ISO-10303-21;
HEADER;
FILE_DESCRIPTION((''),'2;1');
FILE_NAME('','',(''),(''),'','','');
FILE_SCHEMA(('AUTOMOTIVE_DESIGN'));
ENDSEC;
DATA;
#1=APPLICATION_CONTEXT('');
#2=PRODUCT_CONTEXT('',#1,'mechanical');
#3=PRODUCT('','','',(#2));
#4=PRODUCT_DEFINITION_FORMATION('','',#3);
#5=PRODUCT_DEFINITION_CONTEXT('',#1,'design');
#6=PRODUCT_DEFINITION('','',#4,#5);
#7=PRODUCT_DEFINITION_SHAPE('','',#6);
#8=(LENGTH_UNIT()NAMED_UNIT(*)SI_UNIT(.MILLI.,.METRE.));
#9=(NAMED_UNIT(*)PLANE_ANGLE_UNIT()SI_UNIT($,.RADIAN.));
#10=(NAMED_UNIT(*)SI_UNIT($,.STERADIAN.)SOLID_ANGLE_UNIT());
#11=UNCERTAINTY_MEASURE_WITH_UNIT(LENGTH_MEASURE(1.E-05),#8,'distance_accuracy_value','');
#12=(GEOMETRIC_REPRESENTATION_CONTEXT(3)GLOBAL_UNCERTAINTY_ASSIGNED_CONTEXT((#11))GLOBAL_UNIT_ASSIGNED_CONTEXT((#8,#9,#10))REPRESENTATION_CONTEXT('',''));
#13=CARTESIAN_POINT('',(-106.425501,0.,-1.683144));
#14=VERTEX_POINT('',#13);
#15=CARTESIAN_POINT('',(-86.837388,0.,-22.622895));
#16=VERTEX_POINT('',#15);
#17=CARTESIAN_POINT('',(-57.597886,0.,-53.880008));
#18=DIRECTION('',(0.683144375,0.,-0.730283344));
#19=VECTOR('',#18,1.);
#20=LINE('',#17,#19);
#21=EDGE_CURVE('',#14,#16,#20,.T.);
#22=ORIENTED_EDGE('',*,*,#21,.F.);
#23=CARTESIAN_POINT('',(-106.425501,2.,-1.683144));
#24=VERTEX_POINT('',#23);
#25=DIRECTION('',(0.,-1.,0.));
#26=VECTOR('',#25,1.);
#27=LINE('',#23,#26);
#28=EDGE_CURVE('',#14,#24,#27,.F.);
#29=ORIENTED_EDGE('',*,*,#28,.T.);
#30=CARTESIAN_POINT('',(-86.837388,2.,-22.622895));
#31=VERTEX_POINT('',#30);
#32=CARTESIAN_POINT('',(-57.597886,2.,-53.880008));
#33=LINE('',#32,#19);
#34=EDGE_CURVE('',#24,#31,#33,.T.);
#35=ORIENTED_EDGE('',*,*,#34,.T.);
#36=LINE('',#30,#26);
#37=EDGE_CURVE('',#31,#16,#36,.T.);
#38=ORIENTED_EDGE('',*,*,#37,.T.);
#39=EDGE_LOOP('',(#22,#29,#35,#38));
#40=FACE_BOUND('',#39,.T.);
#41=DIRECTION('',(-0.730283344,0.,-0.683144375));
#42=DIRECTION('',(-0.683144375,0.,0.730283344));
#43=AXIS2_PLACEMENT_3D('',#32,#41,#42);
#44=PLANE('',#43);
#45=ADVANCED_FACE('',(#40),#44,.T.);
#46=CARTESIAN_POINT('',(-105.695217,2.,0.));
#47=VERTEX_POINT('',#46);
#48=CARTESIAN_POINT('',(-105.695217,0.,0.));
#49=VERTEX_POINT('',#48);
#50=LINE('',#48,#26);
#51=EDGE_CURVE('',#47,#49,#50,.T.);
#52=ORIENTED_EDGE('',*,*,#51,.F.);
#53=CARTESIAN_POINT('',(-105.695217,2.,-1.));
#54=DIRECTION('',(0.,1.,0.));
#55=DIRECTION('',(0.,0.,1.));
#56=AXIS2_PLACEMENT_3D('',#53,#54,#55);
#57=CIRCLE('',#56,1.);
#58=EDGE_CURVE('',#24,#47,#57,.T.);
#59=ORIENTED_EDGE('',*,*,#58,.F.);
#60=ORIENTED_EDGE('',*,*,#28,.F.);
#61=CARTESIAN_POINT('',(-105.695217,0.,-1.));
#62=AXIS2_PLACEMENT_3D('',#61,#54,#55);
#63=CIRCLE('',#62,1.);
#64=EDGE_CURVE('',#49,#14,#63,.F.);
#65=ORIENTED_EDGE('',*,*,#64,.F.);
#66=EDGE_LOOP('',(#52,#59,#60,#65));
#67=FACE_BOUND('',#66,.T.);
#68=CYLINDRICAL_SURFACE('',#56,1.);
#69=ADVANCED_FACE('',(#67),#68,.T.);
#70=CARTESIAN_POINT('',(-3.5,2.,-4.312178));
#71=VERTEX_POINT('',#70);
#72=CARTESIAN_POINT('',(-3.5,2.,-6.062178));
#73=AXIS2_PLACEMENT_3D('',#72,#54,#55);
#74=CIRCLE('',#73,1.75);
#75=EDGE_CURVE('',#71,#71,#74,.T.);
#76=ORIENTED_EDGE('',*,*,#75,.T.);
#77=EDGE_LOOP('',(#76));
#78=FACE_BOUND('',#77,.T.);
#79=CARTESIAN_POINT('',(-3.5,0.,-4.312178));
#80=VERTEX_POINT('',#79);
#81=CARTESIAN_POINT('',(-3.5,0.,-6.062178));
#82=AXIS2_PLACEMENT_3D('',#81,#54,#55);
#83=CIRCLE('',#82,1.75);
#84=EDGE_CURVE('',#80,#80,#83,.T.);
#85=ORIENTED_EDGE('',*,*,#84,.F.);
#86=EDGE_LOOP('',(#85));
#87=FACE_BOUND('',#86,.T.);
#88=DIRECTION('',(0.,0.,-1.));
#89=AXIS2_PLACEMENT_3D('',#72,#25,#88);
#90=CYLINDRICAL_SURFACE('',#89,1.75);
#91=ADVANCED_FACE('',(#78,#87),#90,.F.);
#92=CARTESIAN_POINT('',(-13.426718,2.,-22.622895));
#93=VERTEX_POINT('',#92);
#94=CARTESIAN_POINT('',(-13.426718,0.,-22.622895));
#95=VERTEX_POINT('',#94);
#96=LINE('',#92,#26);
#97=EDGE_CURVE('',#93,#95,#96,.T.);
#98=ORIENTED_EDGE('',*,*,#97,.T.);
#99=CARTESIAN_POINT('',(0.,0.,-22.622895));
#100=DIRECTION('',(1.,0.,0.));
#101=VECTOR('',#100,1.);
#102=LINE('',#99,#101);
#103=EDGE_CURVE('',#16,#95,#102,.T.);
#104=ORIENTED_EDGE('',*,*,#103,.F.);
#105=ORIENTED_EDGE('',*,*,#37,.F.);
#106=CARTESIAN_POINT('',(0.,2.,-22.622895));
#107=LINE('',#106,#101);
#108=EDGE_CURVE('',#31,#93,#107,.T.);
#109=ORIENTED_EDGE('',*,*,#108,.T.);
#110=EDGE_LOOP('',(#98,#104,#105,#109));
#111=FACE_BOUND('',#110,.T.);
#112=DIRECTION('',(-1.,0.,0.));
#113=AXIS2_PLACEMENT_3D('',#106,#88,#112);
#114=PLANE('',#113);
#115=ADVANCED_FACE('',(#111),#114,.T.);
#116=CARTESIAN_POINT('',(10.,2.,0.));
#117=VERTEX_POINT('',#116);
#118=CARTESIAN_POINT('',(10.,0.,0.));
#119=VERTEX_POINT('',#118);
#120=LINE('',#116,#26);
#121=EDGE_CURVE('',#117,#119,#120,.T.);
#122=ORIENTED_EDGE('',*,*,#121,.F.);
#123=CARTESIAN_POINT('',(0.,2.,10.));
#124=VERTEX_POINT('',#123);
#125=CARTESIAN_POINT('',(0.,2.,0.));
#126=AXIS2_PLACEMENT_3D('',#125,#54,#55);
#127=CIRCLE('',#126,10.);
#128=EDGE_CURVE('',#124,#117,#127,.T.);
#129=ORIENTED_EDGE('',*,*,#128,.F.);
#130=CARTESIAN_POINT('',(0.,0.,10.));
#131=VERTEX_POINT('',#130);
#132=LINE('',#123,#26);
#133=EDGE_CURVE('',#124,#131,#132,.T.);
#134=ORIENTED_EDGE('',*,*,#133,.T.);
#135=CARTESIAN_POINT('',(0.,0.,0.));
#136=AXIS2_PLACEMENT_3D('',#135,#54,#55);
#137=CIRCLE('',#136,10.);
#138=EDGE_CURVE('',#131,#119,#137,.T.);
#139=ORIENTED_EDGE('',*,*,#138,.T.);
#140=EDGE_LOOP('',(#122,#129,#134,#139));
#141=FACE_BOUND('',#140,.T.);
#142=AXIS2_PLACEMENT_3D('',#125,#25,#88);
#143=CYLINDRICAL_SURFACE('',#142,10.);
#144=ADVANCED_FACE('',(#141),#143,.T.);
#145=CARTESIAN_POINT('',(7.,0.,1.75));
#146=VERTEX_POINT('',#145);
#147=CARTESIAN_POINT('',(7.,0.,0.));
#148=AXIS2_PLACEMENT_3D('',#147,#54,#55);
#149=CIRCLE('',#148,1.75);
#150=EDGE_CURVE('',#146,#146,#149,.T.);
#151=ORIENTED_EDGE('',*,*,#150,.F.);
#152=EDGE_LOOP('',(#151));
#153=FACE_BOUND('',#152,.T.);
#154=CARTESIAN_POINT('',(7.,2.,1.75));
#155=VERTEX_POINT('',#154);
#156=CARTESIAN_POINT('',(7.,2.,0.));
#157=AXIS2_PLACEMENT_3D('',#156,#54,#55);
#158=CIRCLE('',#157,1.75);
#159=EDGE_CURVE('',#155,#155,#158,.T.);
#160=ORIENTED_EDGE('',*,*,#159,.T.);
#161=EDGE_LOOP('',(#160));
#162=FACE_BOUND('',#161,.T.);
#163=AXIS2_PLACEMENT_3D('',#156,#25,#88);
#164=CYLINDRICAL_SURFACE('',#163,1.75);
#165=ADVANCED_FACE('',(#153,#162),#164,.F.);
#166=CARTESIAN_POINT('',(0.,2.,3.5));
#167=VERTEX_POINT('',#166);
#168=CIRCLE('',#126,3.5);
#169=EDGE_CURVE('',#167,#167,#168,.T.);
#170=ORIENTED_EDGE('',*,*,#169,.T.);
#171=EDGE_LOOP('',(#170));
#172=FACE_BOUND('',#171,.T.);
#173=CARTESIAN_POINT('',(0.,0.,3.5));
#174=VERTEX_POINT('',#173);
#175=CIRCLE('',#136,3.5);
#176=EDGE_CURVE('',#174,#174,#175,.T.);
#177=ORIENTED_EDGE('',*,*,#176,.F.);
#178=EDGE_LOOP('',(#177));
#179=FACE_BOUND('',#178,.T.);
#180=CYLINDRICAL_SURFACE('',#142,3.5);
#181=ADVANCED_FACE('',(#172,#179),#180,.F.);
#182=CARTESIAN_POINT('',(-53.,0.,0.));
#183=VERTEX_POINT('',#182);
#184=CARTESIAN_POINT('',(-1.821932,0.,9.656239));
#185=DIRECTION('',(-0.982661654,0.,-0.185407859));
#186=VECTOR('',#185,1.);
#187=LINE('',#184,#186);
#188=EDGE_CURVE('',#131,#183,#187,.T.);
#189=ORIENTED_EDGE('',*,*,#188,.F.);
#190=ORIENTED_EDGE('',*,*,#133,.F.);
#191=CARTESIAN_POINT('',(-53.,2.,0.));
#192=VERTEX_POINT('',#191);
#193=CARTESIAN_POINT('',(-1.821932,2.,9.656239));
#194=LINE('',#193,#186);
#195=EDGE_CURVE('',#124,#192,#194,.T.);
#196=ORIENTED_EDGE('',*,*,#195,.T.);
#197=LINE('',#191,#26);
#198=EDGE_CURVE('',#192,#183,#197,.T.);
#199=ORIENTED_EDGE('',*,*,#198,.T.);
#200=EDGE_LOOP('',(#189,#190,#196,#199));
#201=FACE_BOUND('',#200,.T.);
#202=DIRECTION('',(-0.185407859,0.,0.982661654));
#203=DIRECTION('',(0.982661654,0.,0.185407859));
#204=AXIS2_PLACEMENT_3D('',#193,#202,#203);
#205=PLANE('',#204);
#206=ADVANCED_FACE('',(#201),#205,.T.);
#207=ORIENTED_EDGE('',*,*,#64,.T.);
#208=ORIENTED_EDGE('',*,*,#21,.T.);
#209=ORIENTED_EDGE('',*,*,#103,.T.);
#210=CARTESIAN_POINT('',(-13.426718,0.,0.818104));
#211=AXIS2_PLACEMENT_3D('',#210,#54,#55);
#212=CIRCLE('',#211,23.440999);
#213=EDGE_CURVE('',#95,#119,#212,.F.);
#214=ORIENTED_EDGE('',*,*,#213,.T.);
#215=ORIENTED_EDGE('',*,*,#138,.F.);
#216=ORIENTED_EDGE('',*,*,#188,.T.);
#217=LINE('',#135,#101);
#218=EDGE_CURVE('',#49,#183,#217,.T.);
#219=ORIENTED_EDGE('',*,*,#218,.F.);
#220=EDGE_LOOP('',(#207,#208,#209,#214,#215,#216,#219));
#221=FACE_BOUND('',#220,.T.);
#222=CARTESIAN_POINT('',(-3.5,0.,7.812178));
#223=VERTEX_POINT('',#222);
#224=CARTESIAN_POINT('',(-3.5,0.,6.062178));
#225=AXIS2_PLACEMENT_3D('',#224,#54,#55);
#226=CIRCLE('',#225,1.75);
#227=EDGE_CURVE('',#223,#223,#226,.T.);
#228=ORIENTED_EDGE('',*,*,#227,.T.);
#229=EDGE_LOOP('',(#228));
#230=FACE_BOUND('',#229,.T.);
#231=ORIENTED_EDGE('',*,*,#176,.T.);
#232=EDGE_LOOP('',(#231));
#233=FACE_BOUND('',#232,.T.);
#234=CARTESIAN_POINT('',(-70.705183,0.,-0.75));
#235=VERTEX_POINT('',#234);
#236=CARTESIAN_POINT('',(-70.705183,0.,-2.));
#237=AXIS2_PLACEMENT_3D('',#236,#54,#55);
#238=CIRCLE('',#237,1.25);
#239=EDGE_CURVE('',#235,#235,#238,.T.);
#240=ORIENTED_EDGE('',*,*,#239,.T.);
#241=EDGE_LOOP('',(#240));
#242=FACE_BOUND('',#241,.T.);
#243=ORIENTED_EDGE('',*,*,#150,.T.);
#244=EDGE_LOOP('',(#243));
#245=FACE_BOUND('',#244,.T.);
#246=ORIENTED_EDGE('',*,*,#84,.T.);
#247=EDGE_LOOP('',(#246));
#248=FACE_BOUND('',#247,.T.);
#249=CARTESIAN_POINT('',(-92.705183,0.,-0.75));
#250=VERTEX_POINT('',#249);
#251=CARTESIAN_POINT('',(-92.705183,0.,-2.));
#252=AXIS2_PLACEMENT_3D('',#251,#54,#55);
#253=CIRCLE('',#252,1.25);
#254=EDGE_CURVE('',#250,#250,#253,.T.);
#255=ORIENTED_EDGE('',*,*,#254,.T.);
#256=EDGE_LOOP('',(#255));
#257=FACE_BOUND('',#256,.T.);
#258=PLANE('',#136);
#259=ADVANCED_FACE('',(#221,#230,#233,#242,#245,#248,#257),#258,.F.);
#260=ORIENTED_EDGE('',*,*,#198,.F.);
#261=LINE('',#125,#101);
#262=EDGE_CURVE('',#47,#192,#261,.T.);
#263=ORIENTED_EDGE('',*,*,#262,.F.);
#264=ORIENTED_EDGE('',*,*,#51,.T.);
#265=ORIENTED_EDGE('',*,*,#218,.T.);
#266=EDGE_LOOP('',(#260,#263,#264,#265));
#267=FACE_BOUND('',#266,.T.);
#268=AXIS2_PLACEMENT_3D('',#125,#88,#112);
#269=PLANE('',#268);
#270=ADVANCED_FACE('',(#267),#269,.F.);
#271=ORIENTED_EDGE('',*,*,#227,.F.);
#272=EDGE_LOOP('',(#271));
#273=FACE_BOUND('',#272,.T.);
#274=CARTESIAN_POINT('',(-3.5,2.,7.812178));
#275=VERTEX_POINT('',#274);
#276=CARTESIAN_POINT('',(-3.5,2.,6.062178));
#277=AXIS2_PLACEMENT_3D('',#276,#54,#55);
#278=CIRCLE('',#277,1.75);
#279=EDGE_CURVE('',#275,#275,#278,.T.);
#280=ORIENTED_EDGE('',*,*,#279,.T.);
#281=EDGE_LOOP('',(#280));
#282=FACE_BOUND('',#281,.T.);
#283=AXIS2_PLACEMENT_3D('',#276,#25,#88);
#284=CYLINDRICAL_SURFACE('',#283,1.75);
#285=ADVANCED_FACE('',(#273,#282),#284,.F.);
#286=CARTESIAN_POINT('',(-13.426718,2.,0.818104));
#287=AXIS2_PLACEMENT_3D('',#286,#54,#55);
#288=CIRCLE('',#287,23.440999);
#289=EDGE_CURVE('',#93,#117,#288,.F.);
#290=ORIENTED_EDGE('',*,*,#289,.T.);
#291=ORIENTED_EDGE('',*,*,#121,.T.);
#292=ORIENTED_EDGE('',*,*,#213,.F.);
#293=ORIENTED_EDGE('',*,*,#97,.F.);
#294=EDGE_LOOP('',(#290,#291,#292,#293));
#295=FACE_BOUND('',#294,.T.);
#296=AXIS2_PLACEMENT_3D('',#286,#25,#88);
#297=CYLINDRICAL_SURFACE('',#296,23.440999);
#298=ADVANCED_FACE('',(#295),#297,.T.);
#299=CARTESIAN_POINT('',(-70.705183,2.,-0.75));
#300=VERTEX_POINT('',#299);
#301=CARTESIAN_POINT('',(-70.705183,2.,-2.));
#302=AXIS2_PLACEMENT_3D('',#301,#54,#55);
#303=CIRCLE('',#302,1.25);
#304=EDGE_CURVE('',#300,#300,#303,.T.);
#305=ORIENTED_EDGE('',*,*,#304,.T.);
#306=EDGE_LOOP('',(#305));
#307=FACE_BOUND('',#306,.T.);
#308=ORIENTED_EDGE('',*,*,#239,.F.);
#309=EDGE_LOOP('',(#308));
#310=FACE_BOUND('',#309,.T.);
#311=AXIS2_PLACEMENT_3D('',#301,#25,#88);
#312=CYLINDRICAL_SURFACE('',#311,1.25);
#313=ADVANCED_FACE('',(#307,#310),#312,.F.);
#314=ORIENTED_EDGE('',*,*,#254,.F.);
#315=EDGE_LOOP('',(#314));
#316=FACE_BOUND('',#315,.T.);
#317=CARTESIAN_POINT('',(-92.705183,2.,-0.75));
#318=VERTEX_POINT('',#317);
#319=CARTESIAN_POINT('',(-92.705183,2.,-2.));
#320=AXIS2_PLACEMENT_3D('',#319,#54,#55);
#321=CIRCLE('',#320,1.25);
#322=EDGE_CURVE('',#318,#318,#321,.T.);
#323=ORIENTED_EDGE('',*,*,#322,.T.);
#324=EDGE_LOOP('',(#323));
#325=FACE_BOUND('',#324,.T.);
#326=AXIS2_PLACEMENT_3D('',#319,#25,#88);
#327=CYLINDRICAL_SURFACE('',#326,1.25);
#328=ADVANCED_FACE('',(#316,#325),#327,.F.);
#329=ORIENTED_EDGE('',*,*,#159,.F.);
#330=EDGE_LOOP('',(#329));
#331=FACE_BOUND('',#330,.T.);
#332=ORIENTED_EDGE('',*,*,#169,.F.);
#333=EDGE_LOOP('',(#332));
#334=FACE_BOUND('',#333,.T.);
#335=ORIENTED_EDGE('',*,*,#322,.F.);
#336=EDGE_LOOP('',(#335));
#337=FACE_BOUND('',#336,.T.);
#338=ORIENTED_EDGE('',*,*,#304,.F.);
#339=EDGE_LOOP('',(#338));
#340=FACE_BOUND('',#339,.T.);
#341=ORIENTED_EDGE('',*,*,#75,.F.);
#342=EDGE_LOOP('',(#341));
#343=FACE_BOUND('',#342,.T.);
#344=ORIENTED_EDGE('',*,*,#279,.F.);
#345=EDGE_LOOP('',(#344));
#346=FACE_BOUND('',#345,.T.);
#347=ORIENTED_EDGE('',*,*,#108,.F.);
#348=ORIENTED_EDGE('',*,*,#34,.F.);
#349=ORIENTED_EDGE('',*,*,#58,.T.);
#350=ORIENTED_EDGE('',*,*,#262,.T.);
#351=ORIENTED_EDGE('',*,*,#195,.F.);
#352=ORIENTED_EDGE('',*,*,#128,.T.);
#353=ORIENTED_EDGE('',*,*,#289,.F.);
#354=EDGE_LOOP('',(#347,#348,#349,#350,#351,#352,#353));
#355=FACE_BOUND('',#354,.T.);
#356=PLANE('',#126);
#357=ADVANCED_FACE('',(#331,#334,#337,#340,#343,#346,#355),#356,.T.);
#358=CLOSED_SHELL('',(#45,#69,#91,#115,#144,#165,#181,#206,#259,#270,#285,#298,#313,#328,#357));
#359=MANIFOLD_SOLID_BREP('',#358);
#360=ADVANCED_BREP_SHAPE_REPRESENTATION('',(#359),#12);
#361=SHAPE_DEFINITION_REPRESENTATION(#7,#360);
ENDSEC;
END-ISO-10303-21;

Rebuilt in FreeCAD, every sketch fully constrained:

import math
import FreeCAD as App
import Part
import Sketcher

V = App.Vector
Q = App.Units.Quantity


def edges_at(feature, points):
    """Names of the edges that pass closest to the given points."""
    edges = feature.Shape.Edges
    near = lambda p: min(range(len(edges)), key=lambda i: edges[i].distToShape(Part.Vertex(*p))[0])
    return sorted({f"Edge{near(p) + 1}" for p in points})

doc = App.newDocument("Part")
body = doc.addObject("PartDesign::Body", "Body")

# Sketch on XZ plane
sketch1 = body.newObject("Sketcher::SketchObject", "Sketch")
sketch1.AttachmentSupport = (doc.getObject("XZ_Plane"), [""])
sketch1.MapMode = "FlatFace"
sketch1.addGeometry([
    Part.LineSegment(V(-13.4, -22.6, 0), V(-86.8, -22.6, 0)),  # 0
    Part.LineSegment(V(-86.8, -22.6, 0), V(-108, 0, 0)),  # 1
    Part.LineSegment(V(-108, 0, 0), V(-53, 0, 0)),  # 2
    Part.LineSegment(V(-53, 0, 0), V(0, 10, 0)),  # 3
    Part.ArcOfCircle(Part.Circle(V(0, 0, 0), V(0, 0, 1), 10), math.radians(0), math.radians(90)),  # 4
    Part.ArcOfCircle(Part.Circle(V(-13.4, 0.8, 0), V(0, 0, 1), 23.4), math.radians(-90), math.radians(-2)),  # 5
    Part.Circle(V(-3.5, 6.1, 0), V(0, 0, 1), 1.8),  # 6
    Part.Circle(V(-92.7, -2, 0), V(0, 0, 1), 1.2),  # 7
    Part.Circle(V(-70.7, -2, 0), V(0, 0, 1), 1.2),  # 8
    Part.Circle(V(0, 0, 0), V(0, 0, 1), 3.5),  # 9
    Part.Circle(V(7, 0, 0), V(0, 0, 1), 1.8),  # 10
    Part.Circle(V(-3.5, -6.1, 0), V(0, 0, 1), 1.8),  # 11
], False)
sketch1.addConstraint([
    Sketcher.Constraint("Coincident", 0, 2, 1, 1),
    Sketcher.Constraint("Coincident", 1, 2, 2, 1),
    Sketcher.Constraint("Coincident", 2, 2, 3, 1),
    Sketcher.Constraint("Coincident", 3, 2, 4, 2),
    Sketcher.Constraint("Coincident", 4, 1, 5, 2),
    Sketcher.Constraint("Tangent", 5, 1, 0, 1),
    Sketcher.Constraint("Horizontal", 0),
    Sketcher.Constraint("Horizontal", 2),
    Sketcher.Constraint("Coincident", 4, 3, -1, 1),
    Sketcher.Constraint("Coincident", 9, 3, -1, 1),
    Sketcher.Constraint("Equal", 7, 8),
    Sketcher.Constraint("Equal", 6, 10),
    Sketcher.Constraint("Equal", 10, 11),
    Sketcher.Constraint("Symmetric", 6, 3, 11, 3, -1),
    Sketcher.Constraint("PointOnObject", 10, 3, -1),
    Sketcher.Constraint("PointOnObject", 1, 2, -1),
    Sketcher.Constraint("PointOnObject", 3, 2, -2),
    Sketcher.Constraint("PointOnObject", 4, 1, -1),
    Sketcher.Constraint("Horizontal", 7, 3, 8, 3),
    Sketcher.Constraint("Diameter", 9, Q("7 mm")),
    Sketcher.Constraint("Radius", 4, Q("10 mm")),
    Sketcher.Constraint("Diameter", 6, Q("3.5 mm")),
    Sketcher.Constraint("Diameter", 7, Q("2.5 mm")),
    Sketcher.Constraint("DistanceX", 2, 1, 2, 2, Q("55 mm")),
    Sketcher.Constraint("DistanceY", 7, 3, -1, 1, Q("2 mm")),
    Sketcher.Constraint("DistanceX", -1, 1, 10, 3, Q("7 mm")),
    Sketcher.Constraint("DistanceX", 1, 2, -1, 1, Q("108 mm")),
    Sketcher.Constraint("Radius", 5, Q("23.440999 mm")),
    Sketcher.Constraint("DistanceX", 7, 3, 8, 3, Q("22 mm")),
    Sketcher.Constraint("DistanceX", 6, 3, -1, 1, Q("3.5 mm")),
    Sketcher.Constraint("DistanceX", 0, 2, 0, 1, Q("73.410669 mm")),
    Sketcher.Constraint("DistanceX", 5, 3, -1, 1, Q("13.426718 mm")),
    Sketcher.Constraint("DistanceY", -1, 1, 6, 3, Q("6.062178 mm")),
    Sketcher.Constraint("DistanceX", 7, 3, -1, 1, Q("92.705183 mm")),
])
pad1 = body.newObject("PartDesign::Pad", "Pad")
pad1.Profile = sketch1
pad1.Length = 2
pad1.Reversed = True
doc.recompute()

fillet = body.newObject("PartDesign::Fillet", "Fillet")
fillet.Base = (pad1, edges_at(pad1, [(-108, 1, 0)]))
fillet.Radius = 1

doc.recompute()
